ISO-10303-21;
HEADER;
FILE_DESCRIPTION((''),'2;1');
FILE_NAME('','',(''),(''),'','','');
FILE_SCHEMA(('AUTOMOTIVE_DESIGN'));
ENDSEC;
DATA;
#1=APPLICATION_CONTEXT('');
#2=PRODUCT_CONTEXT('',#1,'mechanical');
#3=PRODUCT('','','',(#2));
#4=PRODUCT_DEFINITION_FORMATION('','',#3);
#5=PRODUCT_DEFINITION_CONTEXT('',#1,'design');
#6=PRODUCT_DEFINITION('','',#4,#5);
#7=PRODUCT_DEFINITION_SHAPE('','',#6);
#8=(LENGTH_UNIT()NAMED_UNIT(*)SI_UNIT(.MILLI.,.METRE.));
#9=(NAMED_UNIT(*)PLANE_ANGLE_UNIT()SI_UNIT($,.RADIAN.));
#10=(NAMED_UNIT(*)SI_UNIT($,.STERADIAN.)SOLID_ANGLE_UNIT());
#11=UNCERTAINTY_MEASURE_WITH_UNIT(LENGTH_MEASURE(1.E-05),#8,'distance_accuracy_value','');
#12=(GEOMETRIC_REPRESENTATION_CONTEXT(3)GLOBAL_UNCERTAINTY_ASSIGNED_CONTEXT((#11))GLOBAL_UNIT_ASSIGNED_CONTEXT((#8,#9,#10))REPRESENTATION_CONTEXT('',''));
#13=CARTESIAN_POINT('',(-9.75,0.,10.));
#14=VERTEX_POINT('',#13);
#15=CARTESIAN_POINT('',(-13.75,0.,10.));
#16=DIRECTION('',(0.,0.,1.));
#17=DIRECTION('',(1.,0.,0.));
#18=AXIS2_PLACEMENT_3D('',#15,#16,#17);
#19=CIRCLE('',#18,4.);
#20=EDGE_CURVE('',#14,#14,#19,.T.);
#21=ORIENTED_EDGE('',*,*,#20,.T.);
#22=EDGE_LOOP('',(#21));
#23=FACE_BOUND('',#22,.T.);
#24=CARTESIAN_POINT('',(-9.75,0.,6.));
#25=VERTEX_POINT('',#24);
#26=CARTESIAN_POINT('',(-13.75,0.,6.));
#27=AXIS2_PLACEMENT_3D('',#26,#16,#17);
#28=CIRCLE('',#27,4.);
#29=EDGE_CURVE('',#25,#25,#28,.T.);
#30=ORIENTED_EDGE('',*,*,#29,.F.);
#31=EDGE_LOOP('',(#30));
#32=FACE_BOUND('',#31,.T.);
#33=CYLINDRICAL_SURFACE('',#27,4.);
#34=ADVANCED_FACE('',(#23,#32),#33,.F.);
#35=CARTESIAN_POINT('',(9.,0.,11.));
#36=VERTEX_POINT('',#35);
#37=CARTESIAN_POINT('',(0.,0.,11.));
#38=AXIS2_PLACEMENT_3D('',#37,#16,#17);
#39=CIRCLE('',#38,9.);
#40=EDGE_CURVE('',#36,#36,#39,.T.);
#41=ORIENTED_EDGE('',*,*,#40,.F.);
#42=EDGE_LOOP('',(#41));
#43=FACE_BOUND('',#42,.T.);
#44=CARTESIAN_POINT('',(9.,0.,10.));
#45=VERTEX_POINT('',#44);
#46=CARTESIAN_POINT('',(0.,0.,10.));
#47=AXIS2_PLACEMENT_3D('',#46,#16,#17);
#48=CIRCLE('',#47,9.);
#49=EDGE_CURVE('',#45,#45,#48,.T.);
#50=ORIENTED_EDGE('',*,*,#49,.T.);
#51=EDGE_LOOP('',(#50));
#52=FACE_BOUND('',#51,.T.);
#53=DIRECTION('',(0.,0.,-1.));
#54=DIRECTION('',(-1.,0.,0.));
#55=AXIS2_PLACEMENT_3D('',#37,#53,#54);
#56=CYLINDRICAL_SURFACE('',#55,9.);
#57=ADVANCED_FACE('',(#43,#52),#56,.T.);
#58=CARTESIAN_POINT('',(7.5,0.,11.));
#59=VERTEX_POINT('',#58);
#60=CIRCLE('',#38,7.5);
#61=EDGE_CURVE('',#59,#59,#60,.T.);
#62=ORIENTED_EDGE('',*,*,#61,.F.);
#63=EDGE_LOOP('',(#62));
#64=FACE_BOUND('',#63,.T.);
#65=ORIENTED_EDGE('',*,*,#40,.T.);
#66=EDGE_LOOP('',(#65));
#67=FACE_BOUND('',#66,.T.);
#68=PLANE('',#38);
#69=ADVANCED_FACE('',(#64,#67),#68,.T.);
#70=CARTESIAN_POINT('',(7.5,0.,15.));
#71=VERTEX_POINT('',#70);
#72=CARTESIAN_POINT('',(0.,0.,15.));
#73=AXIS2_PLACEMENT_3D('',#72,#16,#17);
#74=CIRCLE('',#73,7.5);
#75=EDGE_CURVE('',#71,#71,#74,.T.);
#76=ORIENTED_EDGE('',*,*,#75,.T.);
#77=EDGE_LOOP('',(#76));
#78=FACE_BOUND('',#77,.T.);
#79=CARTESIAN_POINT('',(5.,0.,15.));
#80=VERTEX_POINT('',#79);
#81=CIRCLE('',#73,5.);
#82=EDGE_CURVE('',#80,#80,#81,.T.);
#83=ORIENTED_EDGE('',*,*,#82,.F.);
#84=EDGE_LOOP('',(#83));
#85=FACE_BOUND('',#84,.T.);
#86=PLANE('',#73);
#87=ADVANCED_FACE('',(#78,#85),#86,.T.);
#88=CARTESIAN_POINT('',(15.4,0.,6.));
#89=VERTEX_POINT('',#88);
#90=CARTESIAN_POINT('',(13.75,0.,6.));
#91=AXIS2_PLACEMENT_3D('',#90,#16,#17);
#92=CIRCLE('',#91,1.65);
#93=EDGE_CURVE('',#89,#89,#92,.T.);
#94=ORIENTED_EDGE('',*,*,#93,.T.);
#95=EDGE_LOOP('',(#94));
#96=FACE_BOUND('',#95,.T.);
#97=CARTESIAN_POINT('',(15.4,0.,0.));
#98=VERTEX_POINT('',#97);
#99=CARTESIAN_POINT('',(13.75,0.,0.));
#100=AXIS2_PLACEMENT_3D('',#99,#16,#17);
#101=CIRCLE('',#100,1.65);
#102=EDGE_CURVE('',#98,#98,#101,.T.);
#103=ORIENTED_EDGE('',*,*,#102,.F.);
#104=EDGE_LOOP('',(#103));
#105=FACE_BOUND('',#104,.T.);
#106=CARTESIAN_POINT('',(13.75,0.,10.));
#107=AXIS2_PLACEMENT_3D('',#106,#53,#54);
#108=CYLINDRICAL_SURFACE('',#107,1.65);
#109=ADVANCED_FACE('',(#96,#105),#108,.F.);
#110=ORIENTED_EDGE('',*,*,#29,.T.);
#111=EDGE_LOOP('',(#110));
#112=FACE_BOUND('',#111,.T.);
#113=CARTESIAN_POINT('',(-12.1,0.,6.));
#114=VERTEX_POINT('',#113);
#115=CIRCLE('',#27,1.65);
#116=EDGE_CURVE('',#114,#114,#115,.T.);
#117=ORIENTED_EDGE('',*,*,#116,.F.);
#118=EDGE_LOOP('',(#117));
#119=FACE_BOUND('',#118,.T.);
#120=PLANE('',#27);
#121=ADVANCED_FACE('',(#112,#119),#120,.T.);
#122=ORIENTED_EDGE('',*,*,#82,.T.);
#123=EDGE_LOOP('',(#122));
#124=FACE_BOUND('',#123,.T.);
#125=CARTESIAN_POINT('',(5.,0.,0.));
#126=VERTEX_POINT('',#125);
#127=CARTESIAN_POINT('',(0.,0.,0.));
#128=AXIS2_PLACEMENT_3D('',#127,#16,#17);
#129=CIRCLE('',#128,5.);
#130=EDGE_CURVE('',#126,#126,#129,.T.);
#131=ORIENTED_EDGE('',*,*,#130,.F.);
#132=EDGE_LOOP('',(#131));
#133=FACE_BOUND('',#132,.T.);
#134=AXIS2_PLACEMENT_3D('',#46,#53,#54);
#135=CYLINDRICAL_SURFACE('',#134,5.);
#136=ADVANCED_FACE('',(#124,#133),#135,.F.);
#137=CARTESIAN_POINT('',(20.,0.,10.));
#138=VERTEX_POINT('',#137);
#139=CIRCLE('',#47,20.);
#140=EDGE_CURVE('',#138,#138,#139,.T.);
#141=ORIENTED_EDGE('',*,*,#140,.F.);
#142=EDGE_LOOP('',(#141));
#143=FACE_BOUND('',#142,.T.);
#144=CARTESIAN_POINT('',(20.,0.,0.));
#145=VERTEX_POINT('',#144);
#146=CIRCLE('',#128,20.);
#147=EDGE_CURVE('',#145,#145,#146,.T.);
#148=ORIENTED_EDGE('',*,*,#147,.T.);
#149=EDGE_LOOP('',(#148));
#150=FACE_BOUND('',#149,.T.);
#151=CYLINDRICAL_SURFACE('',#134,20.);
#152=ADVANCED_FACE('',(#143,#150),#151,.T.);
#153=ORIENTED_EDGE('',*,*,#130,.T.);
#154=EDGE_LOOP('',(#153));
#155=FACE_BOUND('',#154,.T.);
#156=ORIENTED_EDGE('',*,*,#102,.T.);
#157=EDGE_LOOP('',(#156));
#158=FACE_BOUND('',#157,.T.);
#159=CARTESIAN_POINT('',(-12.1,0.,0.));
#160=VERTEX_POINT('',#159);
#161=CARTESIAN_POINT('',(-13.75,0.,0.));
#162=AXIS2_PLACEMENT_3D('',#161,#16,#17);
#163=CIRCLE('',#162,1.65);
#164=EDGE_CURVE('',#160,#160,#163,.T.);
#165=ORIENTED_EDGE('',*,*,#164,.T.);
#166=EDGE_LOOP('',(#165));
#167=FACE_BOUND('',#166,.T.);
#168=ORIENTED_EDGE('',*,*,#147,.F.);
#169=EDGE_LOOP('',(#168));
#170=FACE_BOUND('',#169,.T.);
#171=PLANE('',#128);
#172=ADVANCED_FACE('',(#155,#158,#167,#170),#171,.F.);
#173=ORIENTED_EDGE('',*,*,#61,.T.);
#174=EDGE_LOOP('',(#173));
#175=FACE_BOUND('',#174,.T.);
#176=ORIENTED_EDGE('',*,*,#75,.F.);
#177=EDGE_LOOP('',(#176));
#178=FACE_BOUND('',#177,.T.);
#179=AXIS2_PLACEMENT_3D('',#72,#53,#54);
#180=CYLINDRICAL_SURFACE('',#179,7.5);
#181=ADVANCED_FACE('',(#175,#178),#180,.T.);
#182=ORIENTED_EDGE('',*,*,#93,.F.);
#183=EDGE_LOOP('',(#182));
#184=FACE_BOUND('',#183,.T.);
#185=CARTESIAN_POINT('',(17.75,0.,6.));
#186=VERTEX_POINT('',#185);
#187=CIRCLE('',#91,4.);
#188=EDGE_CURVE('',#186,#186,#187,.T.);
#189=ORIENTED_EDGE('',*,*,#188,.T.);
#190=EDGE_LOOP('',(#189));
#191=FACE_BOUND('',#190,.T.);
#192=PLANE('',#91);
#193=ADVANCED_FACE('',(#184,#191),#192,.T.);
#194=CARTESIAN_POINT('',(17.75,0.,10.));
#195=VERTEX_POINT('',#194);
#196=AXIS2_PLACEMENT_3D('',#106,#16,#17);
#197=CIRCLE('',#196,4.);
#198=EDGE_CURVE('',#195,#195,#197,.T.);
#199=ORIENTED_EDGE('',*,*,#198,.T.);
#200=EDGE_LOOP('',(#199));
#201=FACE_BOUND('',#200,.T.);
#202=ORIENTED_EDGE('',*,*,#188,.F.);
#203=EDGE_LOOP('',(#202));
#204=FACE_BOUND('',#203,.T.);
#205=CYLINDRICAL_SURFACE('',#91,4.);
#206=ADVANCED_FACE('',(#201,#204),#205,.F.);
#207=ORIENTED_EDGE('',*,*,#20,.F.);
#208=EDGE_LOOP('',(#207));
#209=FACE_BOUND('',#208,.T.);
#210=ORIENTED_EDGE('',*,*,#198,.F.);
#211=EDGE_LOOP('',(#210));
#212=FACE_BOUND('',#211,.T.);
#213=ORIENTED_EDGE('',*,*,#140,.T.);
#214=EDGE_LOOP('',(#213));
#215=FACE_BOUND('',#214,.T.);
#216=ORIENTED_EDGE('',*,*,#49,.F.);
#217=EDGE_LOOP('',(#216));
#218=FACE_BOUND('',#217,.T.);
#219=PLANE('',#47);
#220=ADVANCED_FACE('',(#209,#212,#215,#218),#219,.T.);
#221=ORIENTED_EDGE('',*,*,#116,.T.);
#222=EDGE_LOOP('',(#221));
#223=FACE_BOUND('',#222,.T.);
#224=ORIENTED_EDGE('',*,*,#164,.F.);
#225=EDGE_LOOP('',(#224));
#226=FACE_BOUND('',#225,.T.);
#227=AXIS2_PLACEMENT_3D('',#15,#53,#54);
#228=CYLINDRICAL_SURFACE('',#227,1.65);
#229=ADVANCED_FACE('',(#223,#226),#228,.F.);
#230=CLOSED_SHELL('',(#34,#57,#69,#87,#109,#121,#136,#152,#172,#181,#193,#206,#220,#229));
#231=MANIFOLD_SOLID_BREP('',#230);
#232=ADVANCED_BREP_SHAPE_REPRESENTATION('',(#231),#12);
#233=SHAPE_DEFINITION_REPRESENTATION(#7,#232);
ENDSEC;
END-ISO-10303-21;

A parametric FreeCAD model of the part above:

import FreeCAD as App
import Part
import Sketcher
from FreeCAD import Vector

doc = App.newDocument("Part")
body = doc.addObject("PartDesign::Body", "Body")

sketch1 = body.newObject("Sketcher::SketchObject", "Sketch")
sketch1.AttachmentSupport = (doc.getObject("XY_Plane"), [""])
sketch1.MapMode = "FlatFace"
sketch1.addGeometry(Part.Circle(Vector(0, 0, 0), Vector(0, 0, 1), 20), False)
sketch1.addGeometry(Part.Circle(Vector(-13.8, 0, 0), Vector(0, 0, 1), 1.6), False)
sketch1.addGeometry(Part.Circle(Vector(0, 0, 0), Vector(0, 0, 1), 5), False)
sketch1.addGeometry(Part.Circle(Vector(13.8, 0, 0), Vector(0, 0, 1), 1.6), False)
sketch1.addConstraint(Sketcher.Constraint("Coincident", 0, 3, -1, 1))
sketch1.addConstraint(Sketcher.Constraint("Coincident", 2, 3, -1, 1))
sketch1.addConstraint(Sketcher.Constraint("Equal", 1, 3))
sketch1.addConstraint(Sketcher.Constraint("Symmetric", 1, 3, 3, 3, -1, 1))
sketch1.addConstraint(Sketcher.Constraint("PointOnObject", 1, 3, -1))
sketch1.addConstraint(Sketcher.Constraint("Diameter", 0, 40.0))
sketch1.addConstraint(Sketcher.Constraint("Diameter", 2, 10.0))
sketch1.addConstraint(Sketcher.Constraint("Diameter", 1, 3.3))
sketch1.addConstraint(Sketcher.Constraint("DistanceX", 1, 3, 3, 3, 27.5))
pad1 = body.newObject("PartDesign::Pad", "Pad")
pad1.Profile = sketch1
pad1.Length = 10

sketch2 = body.newObject("Sketcher::SketchObject", "Sketch001")
sketch2.AttachmentSupport = (doc.getObject("XY_Plane"), [""])
sketch2.MapMode = "FlatFace"
sketch2.AttachmentOffset = App.Placement(Vector(0, 0, 10), App.Rotation())
sketch2.addGeometry(Part.Circle(Vector(0, 0, 0), Vector(0, 0, 1), 9), False)
sketch2.addGeometry(Part.Circle(Vector(0, 0, 0), Vector(0, 0, 1), 5), False)
sketch2.addConstraint(Sketcher.Constraint("Coincident", 0, 3, -1, 1))
sketch2.addConstraint(Sketcher.Constraint("Coincident", 1, 3, -1, 1))
sketch2.addConstraint(Sketcher.Constraint("Diameter", 0, 18.0))
sketch2.addConstraint(Sketcher.Constraint("Diameter", 1, 10.0))
pad2 = body.newObject("PartDesign::Pad", "Pad001")
pad2.Profile = sketch2
pad2.Length = 1

sketch3 = body.newObject("Sketcher::SketchObject", "Sketch002")
sketch3.AttachmentSupport = (doc.getObject("XY_Plane"), [""])
sketch3.MapMode = "FlatFace"
sketch3.AttachmentOffset = App.Placement(Vector(0, 0, 11), App.Rotation())
sketch3.addGeometry(Part.Circle(Vector(0, 0, 0), Vector(0, 0, 1), 8), False)
sketch3.addGeometry(Part.Circle(Vector(0, 0, 0), Vector(0, 0, 1), 5), False)
sketch3.addConstraint(Sketcher.Constraint("Coincident", 0, 3, -1, 1))
sketch3.addConstraint(Sketcher.Constraint("Coincident", 1, 3, -1, 1))
sketch3.addConstraint(Sketcher.Constraint("Diameter", 0, 15.0))
sketch3.addConstraint(Sketcher.Constraint("Diameter", 1, 10.0))
pad3 = body.newObject("PartDesign::Pad", "Pad002")
pad3.Profile = sketch3
pad3.Length = 4

sketch4 = body.newObject("Sketcher::SketchObject", "Sketch003")
sketch4.AttachmentSupport = (doc.getObject("XY_Plane"), [""])
sketch4.MapMode = "FlatFace"
sketch4.AttachmentOffset = App.Placement(Vector(0, 0, 10), App.Rotation())
sketch4.addGeometry(Part.Circle(Vector(-13.8, 0, 0), Vector(0, 0, 1), 4), False)
sketch4.addGeometry(Part.Circle(Vector(13.8, 0, 0), Vector(0, 0, 1), 4), False)
sketch4.addConstraint(Sketcher.Constraint("Equal", 0, 1))
sketch4.addConstraint(Sketcher.Constraint("Symmetric", 0, 3, 1, 3, -1, 1))
sketch4.addConstraint(Sketcher.Constraint("PointOnObject", 0, 3, -1))
sketch4.addConstraint(Sketcher.Constraint("Diameter", 0, 8.0))
sketch4.addConstraint(Sketcher.Constraint("DistanceX", 0, 3, 1, 3, 27.5))
pocket1 = body.newObject("PartDesign::Pocket", "Pocket")
pocket1.Profile = sketch4
pocket1.Length = 4

doc.recompute()
